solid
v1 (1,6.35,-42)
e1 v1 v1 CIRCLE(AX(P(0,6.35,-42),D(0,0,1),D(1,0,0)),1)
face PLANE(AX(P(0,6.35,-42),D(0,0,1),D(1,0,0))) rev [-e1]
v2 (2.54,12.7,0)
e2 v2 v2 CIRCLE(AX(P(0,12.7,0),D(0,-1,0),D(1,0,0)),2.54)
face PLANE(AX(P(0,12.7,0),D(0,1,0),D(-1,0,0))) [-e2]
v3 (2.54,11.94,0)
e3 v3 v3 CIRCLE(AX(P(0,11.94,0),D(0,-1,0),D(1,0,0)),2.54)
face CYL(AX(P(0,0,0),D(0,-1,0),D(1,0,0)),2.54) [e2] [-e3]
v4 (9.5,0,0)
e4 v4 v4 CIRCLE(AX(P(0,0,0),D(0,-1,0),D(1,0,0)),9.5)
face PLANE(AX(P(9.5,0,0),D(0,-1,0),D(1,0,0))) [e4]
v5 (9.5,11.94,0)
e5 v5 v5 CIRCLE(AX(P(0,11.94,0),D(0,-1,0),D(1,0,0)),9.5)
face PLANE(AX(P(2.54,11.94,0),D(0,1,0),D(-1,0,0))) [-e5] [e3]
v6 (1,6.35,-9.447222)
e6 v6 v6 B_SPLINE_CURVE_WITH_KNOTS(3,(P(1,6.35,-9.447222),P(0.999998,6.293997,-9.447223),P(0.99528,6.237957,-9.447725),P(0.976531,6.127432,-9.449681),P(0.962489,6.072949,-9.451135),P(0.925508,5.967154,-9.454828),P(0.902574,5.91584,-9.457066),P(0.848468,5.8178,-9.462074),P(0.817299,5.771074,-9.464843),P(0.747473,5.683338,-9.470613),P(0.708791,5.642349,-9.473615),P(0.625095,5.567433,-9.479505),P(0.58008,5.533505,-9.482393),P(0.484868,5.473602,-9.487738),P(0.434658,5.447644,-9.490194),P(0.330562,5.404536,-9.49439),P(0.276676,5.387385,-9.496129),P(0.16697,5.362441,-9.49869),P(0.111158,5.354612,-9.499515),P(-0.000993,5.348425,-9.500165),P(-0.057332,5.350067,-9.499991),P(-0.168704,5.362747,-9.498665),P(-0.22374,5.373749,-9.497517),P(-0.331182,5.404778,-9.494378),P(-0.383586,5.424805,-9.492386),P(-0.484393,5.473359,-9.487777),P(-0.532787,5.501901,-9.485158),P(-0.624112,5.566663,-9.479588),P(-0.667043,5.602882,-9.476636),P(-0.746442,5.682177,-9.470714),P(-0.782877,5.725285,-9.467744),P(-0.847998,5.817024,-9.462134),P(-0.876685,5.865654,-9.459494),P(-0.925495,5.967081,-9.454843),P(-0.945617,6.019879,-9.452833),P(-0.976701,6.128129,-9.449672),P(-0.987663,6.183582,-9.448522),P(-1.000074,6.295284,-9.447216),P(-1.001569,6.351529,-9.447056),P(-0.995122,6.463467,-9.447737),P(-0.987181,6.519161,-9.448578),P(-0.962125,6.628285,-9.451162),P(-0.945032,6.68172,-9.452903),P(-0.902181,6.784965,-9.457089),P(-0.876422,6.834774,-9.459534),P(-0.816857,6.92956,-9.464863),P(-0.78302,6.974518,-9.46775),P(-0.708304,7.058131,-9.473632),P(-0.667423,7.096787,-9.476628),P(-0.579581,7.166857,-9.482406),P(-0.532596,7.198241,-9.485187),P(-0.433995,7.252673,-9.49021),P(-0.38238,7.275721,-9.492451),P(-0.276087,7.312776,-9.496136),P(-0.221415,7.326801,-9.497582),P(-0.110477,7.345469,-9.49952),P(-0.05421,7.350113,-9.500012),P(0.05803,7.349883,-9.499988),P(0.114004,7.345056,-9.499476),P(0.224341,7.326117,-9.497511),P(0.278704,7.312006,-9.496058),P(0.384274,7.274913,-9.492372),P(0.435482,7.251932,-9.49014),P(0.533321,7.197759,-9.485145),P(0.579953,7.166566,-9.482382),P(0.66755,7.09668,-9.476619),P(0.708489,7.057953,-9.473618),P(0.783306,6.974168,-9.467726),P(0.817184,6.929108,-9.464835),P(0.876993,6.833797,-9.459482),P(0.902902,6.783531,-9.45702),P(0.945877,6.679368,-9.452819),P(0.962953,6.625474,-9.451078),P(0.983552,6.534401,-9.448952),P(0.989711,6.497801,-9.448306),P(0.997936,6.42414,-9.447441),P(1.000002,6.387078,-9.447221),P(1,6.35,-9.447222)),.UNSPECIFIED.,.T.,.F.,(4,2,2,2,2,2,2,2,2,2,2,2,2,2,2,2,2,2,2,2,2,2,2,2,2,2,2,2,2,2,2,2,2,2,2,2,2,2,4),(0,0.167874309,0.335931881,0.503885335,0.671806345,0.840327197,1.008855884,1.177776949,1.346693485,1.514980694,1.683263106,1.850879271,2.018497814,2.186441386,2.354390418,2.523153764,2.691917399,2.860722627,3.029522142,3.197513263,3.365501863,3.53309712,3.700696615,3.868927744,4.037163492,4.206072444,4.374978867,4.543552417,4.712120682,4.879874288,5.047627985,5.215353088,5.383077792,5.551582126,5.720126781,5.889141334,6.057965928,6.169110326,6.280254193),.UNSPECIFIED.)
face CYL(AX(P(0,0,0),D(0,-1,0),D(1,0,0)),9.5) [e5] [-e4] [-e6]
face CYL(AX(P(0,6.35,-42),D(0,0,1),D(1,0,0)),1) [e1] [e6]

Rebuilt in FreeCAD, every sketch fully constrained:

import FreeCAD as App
import Part
import Sketcher


def add_polygon(sketch, points):
    """Adds a closed chain of lines whose ends are joined by coincident constraints."""
    first, n = sketch.GeometryCount, len(points)
    for a, b in zip(points, points[1:] + points[:1]):
        sketch.addGeometry(Part.LineSegment(App.Vector(*a, 0), App.Vector(*b, 0)), False)
    for i in range(n):
        sketch.addConstraint(Sketcher.Constraint("Coincident", first + i, 2, first + (i + 1) % n, 1))

doc = App.newDocument("Part")
body = doc.addObject("PartDesign::Body", "Body")

sketch1 = body.newObject("Sketcher::SketchObject", "Sketch")
sketch1.AttachmentSupport = (doc.getObject("XY_Plane"), [""])
sketch1.MapMode = "FlatFace"
add_polygon(sketch1, [(0, 12.7), (0, 0), (9.5, 0), (9.5, 11.9), (2.5, 11.9), (2.5, 12.7)])
sketch1.addConstraint([
    Sketcher.Constraint("Vertical", 0),
    Sketcher.Constraint("Horizontal", 1),
    Sketcher.Constraint("Vertical", 2),
    Sketcher.Constraint("Horizontal", 3),
    Sketcher.Constraint("Vertical", 4),
    Sketcher.Constraint("Horizontal", 5),
    Sketcher.Constraint("Coincident", 0, 2, -1, 1),
    Sketcher.Constraint("DistanceX", 1, 1, 1, 2, 9.5),
    Sketcher.Constraint("DistanceY", 0, 2, 0, 1, 12.7),
    Sketcher.Constraint("DistanceX", 3, 2, 3, 1, 6.96),
    Sketcher.Constraint("DistanceY", 2, 1, 2, 2, 11.94),
])
revolution = body.newObject("PartDesign::Revolution", "Revolution")
revolution.Profile = sketch1
revolution.ReferenceAxis = (sketch1, ["V_Axis"])
revolution.Angle = 360

sketch2 = body.newObject("Sketcher::SketchObject", "Sketch001")
sketch2.AttachmentSupport = (doc.getObject("XY_Plane"), [""])
sketch2.MapMode = "FlatFace"
sketch2.addGeometry(Part.Circle(App.Vector(0, 6.3, 0), App.Vector(0, 0, 1), 1), False)
sketch2.addConstraint([
    Sketcher.Constraint("PointOnObject", 0, 3, -2),
    Sketcher.Constraint("Diameter", 0, 2.0),
    Sketcher.Constraint("DistanceY", -1, 1, 0, 3, 6.35),
])
pad1 = body.newObject("PartDesign::Pad", "Pad")
pad1.Profile = sketch2
pad1.Length = 42
pad1.Reversed = True

doc.recompute()
